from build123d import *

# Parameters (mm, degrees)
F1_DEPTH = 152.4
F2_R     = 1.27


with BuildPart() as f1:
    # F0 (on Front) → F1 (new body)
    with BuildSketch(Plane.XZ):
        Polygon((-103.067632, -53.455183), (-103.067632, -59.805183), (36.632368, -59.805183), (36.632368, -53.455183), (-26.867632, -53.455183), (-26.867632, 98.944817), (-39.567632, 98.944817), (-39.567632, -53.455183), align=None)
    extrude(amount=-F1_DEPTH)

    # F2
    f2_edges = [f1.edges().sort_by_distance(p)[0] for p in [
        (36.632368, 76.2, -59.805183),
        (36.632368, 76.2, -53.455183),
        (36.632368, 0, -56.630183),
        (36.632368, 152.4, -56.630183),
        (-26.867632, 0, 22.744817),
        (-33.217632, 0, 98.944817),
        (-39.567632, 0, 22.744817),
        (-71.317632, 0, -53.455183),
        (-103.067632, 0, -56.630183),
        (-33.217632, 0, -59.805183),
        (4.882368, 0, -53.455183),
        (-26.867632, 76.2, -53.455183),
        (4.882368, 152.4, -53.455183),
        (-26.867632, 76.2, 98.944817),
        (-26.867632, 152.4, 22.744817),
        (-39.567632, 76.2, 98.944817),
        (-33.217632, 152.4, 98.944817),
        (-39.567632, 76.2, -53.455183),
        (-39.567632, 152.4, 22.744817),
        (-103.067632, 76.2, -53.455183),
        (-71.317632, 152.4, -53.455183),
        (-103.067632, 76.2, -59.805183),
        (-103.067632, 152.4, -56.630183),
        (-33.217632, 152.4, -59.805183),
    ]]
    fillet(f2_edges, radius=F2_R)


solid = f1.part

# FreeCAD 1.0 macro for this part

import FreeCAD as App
import Part
import Sketcher
from FreeCAD import Vector
Q = App.Units.Quantity

doc = App.newDocument("Part")
body = doc.addObject("PartDesign::Body", "Body")

# Sketch on XZ plane
sketch1 = body.newObject("Sketcher::SketchObject", "Sketch")
sketch1.AttachmentSupport = (doc.getObject("XZ_Plane"), [""])
sketch1.MapMode = "FlatFace"
sketch1.addGeometry([
    Part.LineSegment(Vector(-103.067632, -53.455183, 0), Vector(-103.067632, -59.805183, 0)),  # 0
    Part.LineSegment(Vector(-103.067632, -59.805183, 0), Vector(36.632368, -59.805183, 0)),  # 1
    Part.LineSegment(Vector(36.632368, -59.805183, 0), Vector(36.632368, -53.455183, 0)),  # 2
    Part.LineSegment(Vector(36.632368, -53.455183, 0), Vector(-26.867632, -53.455183, 0)),  # 3
    Part.LineSegment(Vector(-26.867632, -53.455183, 0), Vector(-26.867632, 98.944817, 0)),  # 4
    Part.LineSegment(Vector(-26.867632, 98.944817, 0), Vector(-39.567632, 98.944817, 0)),  # 5
    Part.LineSegment(Vector(-39.567632, 98.944817, 0), Vector(-39.567632, -53.455183, 0)),  # 6
    Part.LineSegment(Vector(-39.567632, -53.455183, 0), Vector(-103.067632, -53.455183, 0)),  # 7
], False)
sketch1.addConstraint([
    Sketcher.Constraint("Coincident", 0, 2, 1, 1),
    Sketcher.Constraint("Coincident", 1, 2, 2, 1),
    Sketcher.Constraint("Coincident", 2, 2, 3, 1),
    Sketcher.Constraint("Coincident", 3, 2, 4, 1),
    Sketcher.Constraint("Coincident", 4, 2, 5, 1),
    Sketcher.Constraint("Coincident", 5, 2, 6, 1),
    Sketcher.Constraint("Coincident", 6, 2, 7, 1),
    Sketcher.Constraint("Coincident", 7, 2, 0, 1),
    Sketcher.Constraint("Vertical", 0),
    Sketcher.Constraint("Horizontal", 1),
    Sketcher.Constraint("Vertical", 2),
    Sketcher.Constraint("Horizontal", 3),
    Sketcher.Constraint("Vertical", 4),
    Sketcher.Constraint("Horizontal", 5),
    Sketcher.Constraint("Vertical", 6),
    Sketcher.Constraint("Horizontal", 7),
    Sketcher.Constraint("Horizontal", 3, 2, 6, 2),
    Sketcher.Constraint("Equal", 3, 7),
    Sketcher.Constraint("DistanceY", 4, 1, 4, 2, Q("6 in")),
    Sketcher.Constraint("DistanceX", 1, 1, 1, 2, Q("5.5 in")),
    Sketcher.Constraint("DistanceX", 3, 2, 3, 1, Q("2.5 in")),
    Sketcher.Constraint("DistanceY", 0, 2, 0, 1, Q("0.25 in")),
    Sketcher.Constraint("DistanceX", 0, 2, -1, 1, 103.067632),
    Sketcher.Constraint("DistanceY", 0, 2, -1, 1, 59.805183),
])
pad1 = body.newObject("PartDesign::Pad", "Pad")
pad1.Profile = sketch1
pad1.Length = Q("6 in")
pad1.Reversed = True
doc.recompute()

fillet = body.newObject("PartDesign::Fillet", "Fillet")
fillet.Base = (pad1, ["Edge1"])
fillet.UseAllEdges = True
fillet.Radius = Q("0.05 in")

doc.recompute()
